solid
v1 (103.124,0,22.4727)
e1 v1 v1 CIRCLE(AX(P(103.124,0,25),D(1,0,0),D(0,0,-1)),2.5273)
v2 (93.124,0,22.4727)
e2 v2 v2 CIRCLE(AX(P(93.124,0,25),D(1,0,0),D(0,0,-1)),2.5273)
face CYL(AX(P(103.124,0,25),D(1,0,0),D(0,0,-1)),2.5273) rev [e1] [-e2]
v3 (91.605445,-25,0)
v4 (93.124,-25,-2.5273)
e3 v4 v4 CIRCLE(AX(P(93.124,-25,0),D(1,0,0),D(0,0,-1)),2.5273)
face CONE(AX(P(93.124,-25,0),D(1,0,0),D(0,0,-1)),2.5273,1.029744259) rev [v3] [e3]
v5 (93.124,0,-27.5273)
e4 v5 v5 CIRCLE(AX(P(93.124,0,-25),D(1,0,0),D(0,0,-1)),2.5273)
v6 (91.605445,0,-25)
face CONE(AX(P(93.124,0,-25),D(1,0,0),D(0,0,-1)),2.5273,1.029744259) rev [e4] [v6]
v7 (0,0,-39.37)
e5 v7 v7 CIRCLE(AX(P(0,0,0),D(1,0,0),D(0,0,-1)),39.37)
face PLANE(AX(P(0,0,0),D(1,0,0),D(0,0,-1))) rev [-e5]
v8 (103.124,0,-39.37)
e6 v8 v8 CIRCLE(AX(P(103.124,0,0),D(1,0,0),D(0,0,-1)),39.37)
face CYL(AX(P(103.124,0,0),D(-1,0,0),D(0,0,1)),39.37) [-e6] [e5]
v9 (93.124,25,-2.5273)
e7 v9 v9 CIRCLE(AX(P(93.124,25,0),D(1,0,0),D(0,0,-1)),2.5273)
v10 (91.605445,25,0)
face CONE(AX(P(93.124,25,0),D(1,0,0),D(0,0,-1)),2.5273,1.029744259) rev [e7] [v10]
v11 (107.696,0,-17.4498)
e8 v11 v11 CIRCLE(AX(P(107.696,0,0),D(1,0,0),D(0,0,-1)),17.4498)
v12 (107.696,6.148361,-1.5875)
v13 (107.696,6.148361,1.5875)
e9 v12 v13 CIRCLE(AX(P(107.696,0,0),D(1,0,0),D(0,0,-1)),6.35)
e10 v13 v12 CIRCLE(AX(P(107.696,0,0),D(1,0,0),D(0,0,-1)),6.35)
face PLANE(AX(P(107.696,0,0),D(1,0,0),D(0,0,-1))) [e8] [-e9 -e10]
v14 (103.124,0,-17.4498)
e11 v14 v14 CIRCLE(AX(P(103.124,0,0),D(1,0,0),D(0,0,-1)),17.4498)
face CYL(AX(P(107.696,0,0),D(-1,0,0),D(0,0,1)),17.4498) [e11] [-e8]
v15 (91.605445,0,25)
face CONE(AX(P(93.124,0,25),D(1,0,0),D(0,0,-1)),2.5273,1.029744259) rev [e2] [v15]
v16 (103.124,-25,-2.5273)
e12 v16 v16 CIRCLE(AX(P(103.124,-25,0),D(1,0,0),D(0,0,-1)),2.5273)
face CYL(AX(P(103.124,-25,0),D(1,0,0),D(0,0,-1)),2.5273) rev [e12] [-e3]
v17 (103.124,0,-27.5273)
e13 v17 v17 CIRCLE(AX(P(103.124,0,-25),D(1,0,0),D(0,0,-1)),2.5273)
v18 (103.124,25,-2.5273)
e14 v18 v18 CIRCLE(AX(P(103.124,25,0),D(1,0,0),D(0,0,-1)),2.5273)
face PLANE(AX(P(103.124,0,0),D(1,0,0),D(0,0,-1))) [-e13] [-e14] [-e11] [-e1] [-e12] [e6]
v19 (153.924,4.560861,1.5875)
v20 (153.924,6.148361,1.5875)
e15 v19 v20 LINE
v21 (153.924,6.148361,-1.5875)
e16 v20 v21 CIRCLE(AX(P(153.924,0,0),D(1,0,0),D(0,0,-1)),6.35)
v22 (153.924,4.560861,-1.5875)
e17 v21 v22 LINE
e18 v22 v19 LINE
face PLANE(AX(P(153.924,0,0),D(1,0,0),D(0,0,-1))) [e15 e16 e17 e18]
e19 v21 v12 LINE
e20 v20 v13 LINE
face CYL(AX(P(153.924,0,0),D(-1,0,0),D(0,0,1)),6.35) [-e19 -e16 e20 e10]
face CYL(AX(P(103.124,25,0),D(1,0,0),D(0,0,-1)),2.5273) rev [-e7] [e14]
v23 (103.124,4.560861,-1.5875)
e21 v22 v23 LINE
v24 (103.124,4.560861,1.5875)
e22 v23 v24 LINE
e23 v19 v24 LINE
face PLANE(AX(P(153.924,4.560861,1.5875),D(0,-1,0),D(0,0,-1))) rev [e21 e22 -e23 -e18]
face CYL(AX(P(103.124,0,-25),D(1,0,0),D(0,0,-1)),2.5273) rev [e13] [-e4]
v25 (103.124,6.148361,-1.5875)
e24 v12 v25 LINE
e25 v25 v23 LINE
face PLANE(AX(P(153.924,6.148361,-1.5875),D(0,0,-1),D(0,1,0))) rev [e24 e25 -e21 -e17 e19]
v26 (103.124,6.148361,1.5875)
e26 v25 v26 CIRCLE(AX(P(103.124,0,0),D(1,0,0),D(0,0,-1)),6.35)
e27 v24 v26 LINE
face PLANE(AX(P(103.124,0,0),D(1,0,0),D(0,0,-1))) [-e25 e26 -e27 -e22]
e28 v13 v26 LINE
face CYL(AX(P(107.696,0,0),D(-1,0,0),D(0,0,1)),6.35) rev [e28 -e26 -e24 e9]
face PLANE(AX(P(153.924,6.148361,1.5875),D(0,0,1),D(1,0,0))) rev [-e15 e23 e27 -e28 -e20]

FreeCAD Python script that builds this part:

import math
import FreeCAD as App
import Part
import Sketcher
from FreeCAD import Vector
Q = App.Units.Quantity

doc = App.newDocument("Part")
body = doc.addObject("PartDesign::Body", "Body")

sketch1 = doc.addObject("Sketcher::SketchObject", "Sketch")
body.addObject(sketch1)
sketch1.AttachmentSupport = (doc.YZ_Plane, [""])
sketch1.MapMode = "FlatFace"
sketch1.addGeometry(Part.Circle(Vector(0, 0, 0), Vector(0, 0, 1), 39), False)
sketch1.addConstraint([
    Sketcher.Constraint("Coincident", 0, 3, -1, 1),
    Sketcher.Constraint("Diameter", 0, Q("3.1 in")),
])
pad1 = doc.addObject("PartDesign::Pad", "Pad")
body.addObject(pad1)
pad1.Profile = sketch1
pad1.Length = Q("4.06 in")

sketch2 = doc.addObject("Sketcher::SketchObject", "Sketch001")
body.addObject(sketch2)
sketch2.AttachmentSupport = (doc.YZ_Plane, [""])
sketch2.MapMode = "FlatFace"
sketch2.AttachmentOffset = App.Placement(Vector(0, 0, 4.06 * 25.4), App.Rotation())
sketch2.addGeometry([
    Part.LineSegment(Vector(4.6, 1.6, 0), Vector(6.1, 1.6, 0)),
    Part.ArcOfCircle(Part.Circle(Vector(0, 0, 0), Vector(0, 0, 1), 6.3), math.radians(14), math.radians(346)),
    Part.LineSegment(Vector(6.1, -1.6, 0), Vector(4.6, -1.6, 0)),
    Part.LineSegment(Vector(4.6, -1.6, 0), Vector(4.6, 1.6, 0)),
], False)
sketch2.addConstraint([
    Sketcher.Constraint("Coincident", 0, 2, 1, 1),
    Sketcher.Constraint("Coincident", 1, 2, 2, 1),
    Sketcher.Constraint("Coincident", 2, 2, 3, 1),
    Sketcher.Constraint("Coincident", 3, 2, 0, 1),
    Sketcher.Constraint("Horizontal", 0),
    Sketcher.Constraint("Horizontal", 2),
    Sketcher.Constraint("Vertical", 3),
    Sketcher.Constraint("Coincident", 1, 3, -1, 1),
    Sketcher.Constraint("Vertical", 0, 2, 1, 2),
    Sketcher.Constraint("Radius", 1, Q("0.25 in")),
    Sketcher.Constraint("DistanceX", 0, 1, 0, 2, Q("0.0625 in")),
    Sketcher.Constraint("DistanceY", 3, 1, 3, 2, Q("0.125 in")),
])
pad2 = doc.addObject("PartDesign::Pad", "Pad001")
body.addObject(pad2)
pad2.Profile = sketch2
pad2.Length = Q("2 in")

sketch3 = doc.addObject("Sketcher::SketchObject", "Sketch002")
body.addObject(sketch3)
sketch3.AttachmentSupport = (doc.XZ_Plane, [""])
sketch3.MapMode = "FlatFace"
sketch3.AttachmentOffset = App.Placement(Vector(0, 0, -25), App.Rotation())
sketch3.addGeometry([
    Part.LineSegment(Vector(91.6, 0, 0), Vector(103.1, 0, 0)),
    Part.LineSegment(Vector(103.1, 0, 0), Vector(103.1, -2.5, 0)),
    Part.LineSegment(Vector(103.1, -2.5, 0), Vector(93.1, -2.5, 0)),
    Part.LineSegment(Vector(93.1, -2.5, 0), Vector(91.6, 0, 0)),
], False)
sketch3.addConstraint([
    Sketcher.Constraint("Coincident", 0, 2, 1, 1),
    Sketcher.Constraint("Coincident", 1, 2, 2, 1),
    Sketcher.Constraint("Coincident", 2, 2, 3, 1),
    Sketcher.Constraint("Coincident", 3, 2, 0, 1),
    Sketcher.Constraint("Horizontal", 0),
    Sketcher.Constraint("Vertical", 1),
    Sketcher.Constraint("Horizontal", 2),
    Sketcher.Constraint("PointOnObject", 0, 2, -1),
    Sketcher.Constraint("Angle", 3, Q("121 deg")),
    Sketcher.Constraint("DistanceX", -1, 1, 0, 2, Q("4.06 in")),
    Sketcher.Constraint("DistanceY", 1, 2, 1, 1, Q("0.0995 in")),
    Sketcher.Constraint("DistanceX", 2, 2, 2, 1, 10.0),
])
groove = doc.addObject("PartDesign::Groove", "Groove")
body.addObject(groove)
groove.Profile = sketch3
groove.ReferenceAxis = (sketch3, ["H_Axis"])
groove.Angle = 360
doc.recompute()

polarpattern = doc.addObject("PartDesign::PolarPattern", "PolarPattern")
body.addObject(polarpattern)
polarpattern.Originals = [groove]
polarpattern.Axis = (doc.X_Axis, [""])
polarpattern.Angle = 360
polarpattern.Occurrences = 4
body.Tip = polarpattern

sketch4 = doc.addObject("Sketcher::SketchObject", "Sketch003")
body.addObject(sketch4)
sketch4.AttachmentSupport = (doc.YZ_Plane, [""])
sketch4.MapMode = "FlatFace"
sketch4.AttachmentOffset = App.Placement(Vector(0, 0, 4.06 * 25.4), App.Rotation())
sketch4.addGeometry([
    Part.Circle(Vector(0, 0, 0), Vector(0, 0, 1), 17),
    Part.Circle(Vector(0, 0, 0), Vector(0, 0, 1), 6),
], False)
sketch4.addConstraint([
    Sketcher.Constraint("Coincident", 0, 3, -1, 1),
    Sketcher.Constraint("Coincident", 1, 3, -1, 1),
    Sketcher.Constraint("Diameter", 1, Q("0.5 in")),
    Sketcher.Constraint("Diameter", 0, Q("1.374 in")),
])
pad3 = doc.addObject("PartDesign::Pad", "Pad002")
body.addObject(pad3)
pad3.Profile = sketch4
pad3.Length = Q("0.18 in")

doc.recompute()
